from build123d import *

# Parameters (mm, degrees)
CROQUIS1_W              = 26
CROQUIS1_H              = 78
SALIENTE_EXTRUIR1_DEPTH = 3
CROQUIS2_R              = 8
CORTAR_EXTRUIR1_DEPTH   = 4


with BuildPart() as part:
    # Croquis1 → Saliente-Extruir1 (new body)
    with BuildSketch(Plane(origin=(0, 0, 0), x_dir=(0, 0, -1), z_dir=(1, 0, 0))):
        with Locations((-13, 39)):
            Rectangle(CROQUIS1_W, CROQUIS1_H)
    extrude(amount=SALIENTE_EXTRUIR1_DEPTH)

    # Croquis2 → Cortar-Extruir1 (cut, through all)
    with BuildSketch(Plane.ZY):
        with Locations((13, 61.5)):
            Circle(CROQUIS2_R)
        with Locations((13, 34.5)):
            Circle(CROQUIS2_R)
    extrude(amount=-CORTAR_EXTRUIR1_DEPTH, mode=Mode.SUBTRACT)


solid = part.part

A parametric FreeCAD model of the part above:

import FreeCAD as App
import Part
import Sketcher
Q = App.Units.Quantity

doc = App.newDocument("Part")
body = doc.addObject("PartDesign::Body", "Body")

sketch1 = body.newObject("Sketcher::SketchObject", "Sketch")
sketch1.AttachmentSupport = (doc.getObject("YZ_Plane"), [""])
sketch1.MapMode = "FlatFace"
sketch1.addGeometry(Part.LineSegment(App.Vector(78, 26, 0), App.Vector(0, 26, 0)), False)
sketch1.addGeometry(Part.LineSegment(App.Vector(0, 26, 0), App.Vector(0, 0, 0)), False)
sketch1.addGeometry(Part.LineSegment(App.Vector(0, 0, 0), App.Vector(78, 0, 0)), False)
sketch1.addGeometry(Part.LineSegment(App.Vector(78, 0, 0), App.Vector(78, 26, 0)), False)
sketch1.addConstraint(Sketcher.Constraint("Coincident", 0, 2, 1, 1))
sketch1.addConstraint(Sketcher.Constraint("Coincident", 1, 2, 2, 1))
sketch1.addConstraint(Sketcher.Constraint("Coincident", 2, 2, 3, 1))
sketch1.addConstraint(Sketcher.Constraint("Coincident", 3, 2, 0, 1))
sketch1.addConstraint(Sketcher.Constraint("Horizontal", 0))
sketch1.addConstraint(Sketcher.Constraint("Vertical", 1))
sketch1.addConstraint(Sketcher.Constraint("Horizontal", 2))
sketch1.addConstraint(Sketcher.Constraint("Vertical", 3))
sketch1.addConstraint(Sketcher.Constraint("Coincident", 1, 2, -1, 1))
sketch1.addConstraint(Sketcher.Constraint("DistanceX", 0, 2, 0, 1, Q("78 mm")))
sketch1.addConstraint(Sketcher.Constraint("DistanceY", 1, 2, 1, 1, Q("26 mm")))
pad1 = body.newObject("PartDesign::Pad", "Pad")
pad1.Profile = sketch1
pad1.Length = 3

sketch2 = body.newObject("Sketcher::SketchObject", "Sketch001")
sketch2.AttachmentSupport = (doc.getObject("YZ_Plane"), [""])
sketch2.MapMode = "FlatFace"
sketch2.addGeometry(Part.Circle(App.Vector(61.5, 13, 0), App.Vector(0, 0, 1), 8), False)
sketch2.addGeometry(Part.Circle(App.Vector(34.5, 13, 0), App.Vector(0, 0, 1), 8), False)
sketch2.addConstraint(Sketcher.Constraint("Equal", 0, 1))
sketch2.addConstraint(Sketcher.Constraint("Horizontal", 0, 3, 1, 3))
sketch2.addConstraint(Sketcher.Constraint("Diameter", 0, Q("16 mm")))
sketch2.addConstraint(Sketcher.Constraint("DistanceY", -1, 1, 0, 3, Q("13 mm")))
sketch2.addConstraint(Sketcher.Constraint("DistanceX", 1, 3, 0, 3, Q("27 mm")))
sketch2.addConstraint(Sketcher.Constraint("DistanceX", -1, 1, 0, 3, Q("61.5 mm")))
pocket1 = body.newObject("PartDesign::Pocket", "Pocket")
pocket1.Profile = sketch2
pocket1.Type = "ThroughAll"
pocket1.Reversed = True

doc.recompute()
